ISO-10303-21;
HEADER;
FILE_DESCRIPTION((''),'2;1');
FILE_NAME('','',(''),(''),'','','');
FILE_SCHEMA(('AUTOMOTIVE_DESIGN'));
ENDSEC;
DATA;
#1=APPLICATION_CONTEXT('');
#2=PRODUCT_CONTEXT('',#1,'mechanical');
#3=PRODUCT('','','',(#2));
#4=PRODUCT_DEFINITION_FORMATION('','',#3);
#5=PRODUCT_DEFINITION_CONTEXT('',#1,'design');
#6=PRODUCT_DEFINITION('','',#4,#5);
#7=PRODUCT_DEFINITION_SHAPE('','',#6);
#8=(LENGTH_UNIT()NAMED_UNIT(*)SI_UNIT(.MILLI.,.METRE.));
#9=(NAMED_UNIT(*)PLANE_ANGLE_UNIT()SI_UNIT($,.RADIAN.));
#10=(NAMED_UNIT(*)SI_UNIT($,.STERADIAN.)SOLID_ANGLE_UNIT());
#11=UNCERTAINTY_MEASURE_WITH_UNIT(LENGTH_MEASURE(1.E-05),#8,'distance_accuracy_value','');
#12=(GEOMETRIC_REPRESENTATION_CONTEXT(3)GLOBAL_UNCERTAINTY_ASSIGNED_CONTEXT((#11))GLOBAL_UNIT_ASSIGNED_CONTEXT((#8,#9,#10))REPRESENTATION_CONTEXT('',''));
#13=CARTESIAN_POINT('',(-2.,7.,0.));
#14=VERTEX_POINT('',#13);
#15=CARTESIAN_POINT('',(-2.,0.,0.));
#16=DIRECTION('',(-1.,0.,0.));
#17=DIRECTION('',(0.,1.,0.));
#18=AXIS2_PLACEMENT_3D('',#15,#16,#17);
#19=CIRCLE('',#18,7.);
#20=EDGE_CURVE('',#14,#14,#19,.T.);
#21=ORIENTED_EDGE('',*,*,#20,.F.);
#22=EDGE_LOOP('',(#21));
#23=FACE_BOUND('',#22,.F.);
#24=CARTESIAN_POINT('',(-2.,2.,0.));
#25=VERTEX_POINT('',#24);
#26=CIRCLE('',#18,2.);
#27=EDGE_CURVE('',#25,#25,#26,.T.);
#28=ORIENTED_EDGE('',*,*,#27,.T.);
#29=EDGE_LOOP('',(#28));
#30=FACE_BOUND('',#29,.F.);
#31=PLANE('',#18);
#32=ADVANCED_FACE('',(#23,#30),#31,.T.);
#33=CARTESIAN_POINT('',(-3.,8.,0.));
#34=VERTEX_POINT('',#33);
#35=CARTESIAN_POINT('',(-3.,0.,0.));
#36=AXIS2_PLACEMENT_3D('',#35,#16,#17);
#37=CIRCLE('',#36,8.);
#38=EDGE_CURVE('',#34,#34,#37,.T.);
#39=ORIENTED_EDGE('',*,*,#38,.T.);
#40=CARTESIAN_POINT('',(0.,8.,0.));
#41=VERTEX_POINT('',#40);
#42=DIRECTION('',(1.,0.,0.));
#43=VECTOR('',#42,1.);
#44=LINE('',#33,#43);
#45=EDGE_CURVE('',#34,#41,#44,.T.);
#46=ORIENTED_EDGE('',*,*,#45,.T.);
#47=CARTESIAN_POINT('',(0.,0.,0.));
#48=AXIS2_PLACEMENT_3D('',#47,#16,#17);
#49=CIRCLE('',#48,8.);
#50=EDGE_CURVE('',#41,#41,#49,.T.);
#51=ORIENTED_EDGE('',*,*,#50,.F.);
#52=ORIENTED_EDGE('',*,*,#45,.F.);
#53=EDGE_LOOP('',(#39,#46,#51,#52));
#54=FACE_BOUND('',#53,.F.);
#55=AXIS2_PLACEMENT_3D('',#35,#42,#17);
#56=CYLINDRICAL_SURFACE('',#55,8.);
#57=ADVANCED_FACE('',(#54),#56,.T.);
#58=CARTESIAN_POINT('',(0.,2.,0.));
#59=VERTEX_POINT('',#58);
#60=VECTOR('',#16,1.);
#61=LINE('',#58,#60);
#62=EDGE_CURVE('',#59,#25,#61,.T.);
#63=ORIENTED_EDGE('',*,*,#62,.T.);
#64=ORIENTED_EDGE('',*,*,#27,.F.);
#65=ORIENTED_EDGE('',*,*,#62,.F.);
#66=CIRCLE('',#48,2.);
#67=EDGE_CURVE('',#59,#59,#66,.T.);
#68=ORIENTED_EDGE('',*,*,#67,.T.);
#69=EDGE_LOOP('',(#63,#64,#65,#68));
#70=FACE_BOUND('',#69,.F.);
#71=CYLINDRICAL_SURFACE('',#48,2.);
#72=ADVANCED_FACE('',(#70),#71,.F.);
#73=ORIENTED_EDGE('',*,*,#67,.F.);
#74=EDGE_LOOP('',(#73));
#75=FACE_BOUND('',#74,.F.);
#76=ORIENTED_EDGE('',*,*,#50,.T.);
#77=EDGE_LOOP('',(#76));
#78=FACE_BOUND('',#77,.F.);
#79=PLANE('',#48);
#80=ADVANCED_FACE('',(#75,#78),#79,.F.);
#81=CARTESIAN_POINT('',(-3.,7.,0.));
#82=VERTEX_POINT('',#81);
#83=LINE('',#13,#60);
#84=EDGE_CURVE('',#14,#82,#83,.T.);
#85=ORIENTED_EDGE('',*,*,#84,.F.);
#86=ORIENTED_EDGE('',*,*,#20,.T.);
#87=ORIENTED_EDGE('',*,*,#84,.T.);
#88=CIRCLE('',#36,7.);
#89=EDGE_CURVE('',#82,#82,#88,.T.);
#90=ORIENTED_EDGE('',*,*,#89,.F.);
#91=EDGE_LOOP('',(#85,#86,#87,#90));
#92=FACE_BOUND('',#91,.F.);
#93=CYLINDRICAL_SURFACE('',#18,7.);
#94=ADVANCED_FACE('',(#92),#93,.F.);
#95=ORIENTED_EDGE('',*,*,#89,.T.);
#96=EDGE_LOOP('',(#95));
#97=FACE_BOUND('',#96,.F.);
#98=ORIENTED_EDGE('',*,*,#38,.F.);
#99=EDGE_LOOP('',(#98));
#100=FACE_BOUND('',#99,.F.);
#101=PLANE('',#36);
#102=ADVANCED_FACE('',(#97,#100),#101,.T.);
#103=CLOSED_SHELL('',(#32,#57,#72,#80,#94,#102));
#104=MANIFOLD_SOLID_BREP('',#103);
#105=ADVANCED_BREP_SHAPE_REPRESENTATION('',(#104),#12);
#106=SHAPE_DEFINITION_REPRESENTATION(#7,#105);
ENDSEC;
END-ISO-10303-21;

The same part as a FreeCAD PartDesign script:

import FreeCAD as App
import Part
import Sketcher
from FreeCAD import Vector
Q = App.Units.Quantity


def add_polygon(sketch, points):
    """Adds a closed chain of lines whose ends are joined by coincident constraints."""
    first, n = sketch.GeometryCount, len(points)
    for a, b in zip(points, points[1:] + points[:1]):
        sketch.addGeometry(Part.LineSegment(App.Vector(*a, 0), App.Vector(*b, 0)), False)
    for i in range(n):
        sketch.addConstraint(Sketcher.Constraint("Coincident", first + i, 2, first + (i + 1) % n, 1))

doc = App.newDocument("Part")
params = doc.addObject("Spreadsheet::Sheet", "Params")
for row, (alias, value) in enumerate([
    ("sketch1_width", "2 mm"),
    ("sketch1_width2", "1 mm"),
    ("sketch1_height", "5 mm"),
    ("revolution_angle", "360 deg"),
], start=1):
    params.set(f"A{row}", alias)
    params.set(f"B{row}", "=" + value)
    params.setAlias(f"B{row}", alias)

body = doc.addObject("PartDesign::Body", "Body")

sketch1 = body.newObject("Sketcher::SketchObject", "Sketch")
sketch1.AttachmentSupport = (doc.getObject("XY_Plane"), [""])
sketch1.MapMode = "FlatFace"
add_polygon(sketch1, [(-2, 7), (-2, 2), (0, 2), (0, 8), (-3, 8), (-3, 7)])
sketch1.addConstraint(Sketcher.Constraint("Vertical", 0))
sketch1.addConstraint(Sketcher.Constraint("Horizontal", 1))
sketch1.addConstraint(Sketcher.Constraint("Vertical", 2))
sketch1.addConstraint(Sketcher.Constraint("Horizontal", 3))
sketch1.addConstraint(Sketcher.Constraint("Vertical", 4))
sketch1.addConstraint(Sketcher.Constraint("Horizontal", 5))
sketch1.addConstraint(Sketcher.Constraint("PointOnObject", 1, 2, -2))
sketch1.addConstraint(Sketcher.Constraint("Equal", 5, 4))
sketch1.addConstraint(Sketcher.Constraint("DistanceX", 1, 1, 1, 2, Q("2 mm")))
sketch1.addConstraint(Sketcher.Constraint("DistanceX", 5, 1, 5, 2, Q("1 mm")))
sketch1.addConstraint(Sketcher.Constraint("DistanceY", -1, 1, 0, 2, Q("2 mm")))
sketch1.addConstraint(Sketcher.Constraint("DistanceY", 0, 2, 0, 1, Q("5 mm")))
sketch1.setExpression("Constraints[14]", "Params.sketch1_width")
sketch1.setExpression("Constraints[15]", "Params.sketch1_width2")
sketch1.setExpression("Constraints[17]", "Params.sketch1_height")
revolution = body.newObject("PartDesign::Revolution", "Revolution")
revolution.Profile = sketch1
revolution.ReferenceAxis = (sketch1, ["H_Axis"])
revolution.setExpression("Angle", "Params.revolution_angle")

doc.recompute()
